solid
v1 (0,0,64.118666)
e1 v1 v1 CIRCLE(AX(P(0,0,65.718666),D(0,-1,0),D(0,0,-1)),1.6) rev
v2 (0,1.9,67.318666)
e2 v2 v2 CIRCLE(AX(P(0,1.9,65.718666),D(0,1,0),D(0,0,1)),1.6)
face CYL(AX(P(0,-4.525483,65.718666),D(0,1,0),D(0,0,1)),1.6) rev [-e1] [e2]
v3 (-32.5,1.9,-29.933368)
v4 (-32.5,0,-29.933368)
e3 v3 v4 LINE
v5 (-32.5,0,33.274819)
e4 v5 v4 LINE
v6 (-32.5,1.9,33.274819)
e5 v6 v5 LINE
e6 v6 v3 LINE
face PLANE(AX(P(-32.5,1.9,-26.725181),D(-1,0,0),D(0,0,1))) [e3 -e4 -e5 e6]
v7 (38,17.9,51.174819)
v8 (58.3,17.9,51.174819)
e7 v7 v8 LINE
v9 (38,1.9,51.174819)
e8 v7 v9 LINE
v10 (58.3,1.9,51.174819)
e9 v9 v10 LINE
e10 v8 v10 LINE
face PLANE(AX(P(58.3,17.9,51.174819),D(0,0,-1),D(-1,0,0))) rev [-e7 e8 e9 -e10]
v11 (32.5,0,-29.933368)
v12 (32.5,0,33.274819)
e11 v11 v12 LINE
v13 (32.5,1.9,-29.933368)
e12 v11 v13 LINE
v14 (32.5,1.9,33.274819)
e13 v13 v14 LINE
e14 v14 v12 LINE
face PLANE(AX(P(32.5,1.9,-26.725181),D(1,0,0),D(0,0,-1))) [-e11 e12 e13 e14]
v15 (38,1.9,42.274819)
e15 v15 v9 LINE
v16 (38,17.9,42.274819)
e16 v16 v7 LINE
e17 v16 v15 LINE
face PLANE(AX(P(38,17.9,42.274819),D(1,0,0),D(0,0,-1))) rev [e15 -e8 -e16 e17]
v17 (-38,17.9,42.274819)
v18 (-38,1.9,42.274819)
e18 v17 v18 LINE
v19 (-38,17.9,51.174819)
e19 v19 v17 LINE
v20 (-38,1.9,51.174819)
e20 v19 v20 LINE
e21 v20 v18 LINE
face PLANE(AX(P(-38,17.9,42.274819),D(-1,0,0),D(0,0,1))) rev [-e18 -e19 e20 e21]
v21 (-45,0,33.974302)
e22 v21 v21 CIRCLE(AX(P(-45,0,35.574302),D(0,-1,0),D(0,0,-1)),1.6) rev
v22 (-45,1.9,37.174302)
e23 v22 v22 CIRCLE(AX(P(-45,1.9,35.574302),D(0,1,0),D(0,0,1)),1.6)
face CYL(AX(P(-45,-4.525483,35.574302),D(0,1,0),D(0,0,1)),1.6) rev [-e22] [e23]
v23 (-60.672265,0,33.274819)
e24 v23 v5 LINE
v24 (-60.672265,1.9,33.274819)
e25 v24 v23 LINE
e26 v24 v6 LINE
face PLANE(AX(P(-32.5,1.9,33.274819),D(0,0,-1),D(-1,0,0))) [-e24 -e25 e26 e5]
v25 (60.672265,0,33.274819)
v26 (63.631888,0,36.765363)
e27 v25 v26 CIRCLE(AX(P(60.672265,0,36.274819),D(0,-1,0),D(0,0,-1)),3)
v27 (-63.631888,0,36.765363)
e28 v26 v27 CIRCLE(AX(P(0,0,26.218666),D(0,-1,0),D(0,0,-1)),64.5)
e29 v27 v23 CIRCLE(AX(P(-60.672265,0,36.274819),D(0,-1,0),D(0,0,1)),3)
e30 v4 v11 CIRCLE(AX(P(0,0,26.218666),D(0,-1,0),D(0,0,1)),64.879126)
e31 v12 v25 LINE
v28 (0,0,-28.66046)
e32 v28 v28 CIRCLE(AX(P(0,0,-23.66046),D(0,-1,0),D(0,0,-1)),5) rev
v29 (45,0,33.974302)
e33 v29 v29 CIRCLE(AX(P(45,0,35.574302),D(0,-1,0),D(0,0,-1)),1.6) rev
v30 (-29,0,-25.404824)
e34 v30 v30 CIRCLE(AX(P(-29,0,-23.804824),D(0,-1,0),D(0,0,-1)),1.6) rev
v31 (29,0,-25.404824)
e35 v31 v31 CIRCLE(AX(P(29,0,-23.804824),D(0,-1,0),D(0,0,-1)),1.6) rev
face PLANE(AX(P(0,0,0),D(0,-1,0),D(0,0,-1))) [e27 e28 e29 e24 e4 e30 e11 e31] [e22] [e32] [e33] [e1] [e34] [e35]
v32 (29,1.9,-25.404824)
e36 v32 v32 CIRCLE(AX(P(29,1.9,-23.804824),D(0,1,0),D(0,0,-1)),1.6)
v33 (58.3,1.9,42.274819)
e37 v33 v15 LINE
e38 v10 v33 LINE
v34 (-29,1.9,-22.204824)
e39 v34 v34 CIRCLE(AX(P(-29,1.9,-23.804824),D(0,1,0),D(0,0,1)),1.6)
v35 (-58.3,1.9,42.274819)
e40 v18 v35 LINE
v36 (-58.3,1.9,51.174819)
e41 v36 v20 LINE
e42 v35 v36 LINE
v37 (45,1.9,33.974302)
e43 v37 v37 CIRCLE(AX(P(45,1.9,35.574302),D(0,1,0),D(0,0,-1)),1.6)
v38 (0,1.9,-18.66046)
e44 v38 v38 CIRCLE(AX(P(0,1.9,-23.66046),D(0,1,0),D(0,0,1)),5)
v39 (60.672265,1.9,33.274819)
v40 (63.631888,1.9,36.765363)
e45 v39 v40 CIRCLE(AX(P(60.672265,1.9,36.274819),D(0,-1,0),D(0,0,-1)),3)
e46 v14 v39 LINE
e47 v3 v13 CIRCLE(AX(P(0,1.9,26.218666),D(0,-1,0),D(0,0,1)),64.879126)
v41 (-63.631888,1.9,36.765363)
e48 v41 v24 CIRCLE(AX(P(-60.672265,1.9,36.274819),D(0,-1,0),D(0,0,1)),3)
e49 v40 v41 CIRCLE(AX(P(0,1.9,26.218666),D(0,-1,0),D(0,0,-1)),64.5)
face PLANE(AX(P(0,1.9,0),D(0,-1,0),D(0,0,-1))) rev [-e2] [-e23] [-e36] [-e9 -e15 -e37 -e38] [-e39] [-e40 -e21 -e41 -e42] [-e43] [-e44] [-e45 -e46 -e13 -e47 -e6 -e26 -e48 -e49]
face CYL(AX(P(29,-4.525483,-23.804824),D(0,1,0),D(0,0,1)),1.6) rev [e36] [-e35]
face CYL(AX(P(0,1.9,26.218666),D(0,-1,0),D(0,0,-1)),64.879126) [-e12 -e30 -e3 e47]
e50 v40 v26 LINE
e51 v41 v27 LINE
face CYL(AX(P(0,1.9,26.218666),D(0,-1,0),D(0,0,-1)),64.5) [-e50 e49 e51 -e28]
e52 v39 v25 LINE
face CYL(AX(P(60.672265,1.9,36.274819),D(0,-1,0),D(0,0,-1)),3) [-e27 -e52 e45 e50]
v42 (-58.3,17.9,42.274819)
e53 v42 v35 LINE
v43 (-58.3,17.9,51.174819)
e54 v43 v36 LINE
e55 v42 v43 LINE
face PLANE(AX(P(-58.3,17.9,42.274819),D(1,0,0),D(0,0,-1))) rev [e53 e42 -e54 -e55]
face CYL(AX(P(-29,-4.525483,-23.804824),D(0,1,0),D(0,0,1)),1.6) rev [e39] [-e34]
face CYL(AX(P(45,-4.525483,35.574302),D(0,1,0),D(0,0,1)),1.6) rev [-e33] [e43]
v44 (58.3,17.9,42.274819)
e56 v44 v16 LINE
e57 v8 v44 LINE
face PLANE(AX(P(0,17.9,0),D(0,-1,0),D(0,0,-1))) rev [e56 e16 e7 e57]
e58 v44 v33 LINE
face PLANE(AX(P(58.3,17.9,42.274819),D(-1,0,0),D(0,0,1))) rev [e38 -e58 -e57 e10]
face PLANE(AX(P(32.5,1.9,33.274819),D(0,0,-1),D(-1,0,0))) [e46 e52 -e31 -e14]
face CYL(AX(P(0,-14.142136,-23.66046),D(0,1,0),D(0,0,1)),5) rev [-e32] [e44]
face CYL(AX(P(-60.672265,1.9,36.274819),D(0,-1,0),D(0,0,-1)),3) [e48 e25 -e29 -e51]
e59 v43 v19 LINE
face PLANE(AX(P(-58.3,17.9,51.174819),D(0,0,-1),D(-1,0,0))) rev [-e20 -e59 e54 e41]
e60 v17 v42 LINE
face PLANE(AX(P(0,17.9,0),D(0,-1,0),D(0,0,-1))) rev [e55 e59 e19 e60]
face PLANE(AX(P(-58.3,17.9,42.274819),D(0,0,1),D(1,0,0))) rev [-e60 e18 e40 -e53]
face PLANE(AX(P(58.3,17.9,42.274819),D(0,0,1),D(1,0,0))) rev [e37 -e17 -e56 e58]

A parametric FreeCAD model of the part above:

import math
import FreeCAD as App
import Part
import Sketcher

doc = App.newDocument("Part")
body = doc.addObject("PartDesign::Body", "Body")

# Sketch on XZ plane
sketch1 = body.newObject("Sketcher::SketchObject", "Sketch")
sketch1.AttachmentSupport = (doc.getObject("XZ_Plane"), [""])
sketch1.MapMode = "FlatFace"
sketch1.addGeometry([
    Part.LineSegment(App.Vector(-18, -10, 0), App.Vector(-18, 10, 0)),
    Part.LineSegment(App.Vector(-18, 10, 0), App.Vector(18, 10, 0)),
    Part.LineSegment(App.Vector(18, 10, 0), App.Vector(18, -10, 0)),
    Part.LineSegment(App.Vector(18, -10, 0), App.Vector(-18, -10, 0)),
], False)
sketch1.addConstraint([
    Sketcher.Constraint("Coincident", 0, 2, 1, 1),
    Sketcher.Constraint("Coincident", 1, 2, 2, 1),
    Sketcher.Constraint("Coincident", 2, 2, 3, 1),
    Sketcher.Constraint("Coincident", 3, 2, 0, 1),
    Sketcher.Constraint("Vertical", 0),
    Sketcher.Constraint("Horizontal", 1),
    Sketcher.Constraint("Vertical", 2),
    Sketcher.Constraint("Horizontal", 3),
    Sketcher.Constraint("Symmetric", 0, 2, 2, 2, -1, 1),
    Sketcher.Constraint("DistanceX", 1, 1, 1, 2, 36.0),
    Sketcher.Constraint("DistanceY", 0, 1, 0, 2, 20.0),
])
pad1 = body.newObject("PartDesign::Pad", "Pad")
pad1.Profile = sketch1
pad1.Length = 1.9
pad1.Reversed = True

# Sketch on XZ plane
sketch2 = body.newObject("Sketcher::SketchObject", "Sketch001")
sketch2.AttachmentSupport = (doc.getObject("XZ_Plane"), [""])
sketch2.MapMode = "FlatFace"
sketch2.addGeometry([
    Part.LineSegment(App.Vector(37.5, -26.725181, 0), App.Vector(32.5, -26.725181, 0)),  # 0
    Part.LineSegment(App.Vector(32.5, -26.725181, 0), App.Vector(32.5, 33.274819, 0)),  # 1
    Part.LineSegment(App.Vector(32.5, 33.274819, 0), App.Vector(60.672265, 33.274819, 0)),  # 2
    Part.ArcOfCircle(Part.Circle(App.Vector(60.672265, 36.274819, 0), App.Vector(0, 0, 1), 3), math.radians(-90), math.radians(9.41096)),  # 3
    Part.ArcOfCircle(Part.Circle(App.Vector(0, 26.218666, 0), App.Vector(0, 0, 1), 64.5), math.radians(9.41096), math.radians(170.58904)),  # 4
    Part.ArcOfCircle(Part.Circle(App.Vector(-60.672265, 36.274819, 0), App.Vector(0, 0, 1), 3), math.radians(170.58904), math.radians(270)),  # 5
    Part.LineSegment(App.Vector(-60.672265, 33.274819, 0), App.Vector(-32.5, 33.274819, 0)),  # 6
    Part.LineSegment(App.Vector(-32.5, 33.274819, 0), App.Vector(-32.5, -26.725181, 0)),  # 7
    Part.LineSegment(App.Vector(-32.5, -26.725181, 0), App.Vector(-37.5, -26.725181, 0)),  # 8
    Part.ArcOfCircle(Part.Circle(App.Vector(0, 26.218666, 0), App.Vector(0, 0, 1), 64.879126), math.radians(-125.30985), math.radians(-54.69015)),  # 9
], False)
sketch2.addConstraint([
    Sketcher.Constraint("Coincident", 0, 2, 1, 1),
    Sketcher.Constraint("Coincident", 1, 2, 2, 1),
    Sketcher.Constraint("Tangent", 2, 2, 3, 1),
    Sketcher.Constraint("Tangent", 3, 2, 4, 1),
    Sketcher.Constraint("Tangent", 4, 2, 5, 1),
    Sketcher.Constraint("Tangent", 5, 2, 6, 1),
    Sketcher.Constraint("Coincident", 6, 2, 7, 1),
    Sketcher.Constraint("Coincident", 7, 2, 8, 1),
    Sketcher.Constraint("Coincident", 8, 2, 9, 1),
    Sketcher.Constraint("Coincident", 9, 2, 0, 1),
    Sketcher.Constraint("Horizontal", 0),
    Sketcher.Constraint("Vertical", 1),
    Sketcher.Constraint("Horizontal", 2),
    Sketcher.Constraint("Horizontal", 6),
    Sketcher.Constraint("Vertical", 7),
    Sketcher.Constraint("Horizontal", 8),
    Sketcher.Constraint("Coincident", 9, 3, 4, 3),
    Sketcher.Constraint("Equal", 3, 5),
    Sketcher.Constraint("Symmetric", 3, 3, 5, 3, -2),
    Sketcher.Constraint("Symmetric", 0, 2, 7, 2, -2),
    Sketcher.Constraint("Radius", 3, 3.0),
    Sketcher.Constraint("Radius", 4, 64.5),
    Sketcher.Constraint("DistanceX", 0, 2, 0, 1, 5.0),
    Sketcher.Constraint("DistanceY", 1, 1, 1, 2, 60.0),
    Sketcher.Constraint("DistanceX", 7, 2, 0, 2, 65.0),
    Sketcher.Constraint("Radius", 9, 64.879126),
    Sketcher.Constraint("DistanceY", -1, 1, 3, 3, 36.274819),
])
pad2 = body.newObject("PartDesign::Pad", "Pad001")
pad2.Profile = sketch2
pad2.Length = 1.9
pad2.Reversed = True

# Sketch on XZ plane
sketch3 = body.newObject("Sketcher::SketchObject", "Sketch002")
sketch3.AttachmentSupport = (doc.getObject("XZ_Plane"), [""])
sketch3.MapMode = "FlatFace"
sketch3.AttachmentOffset = App.Placement(App.Vector(0, 0, -1.9), App.Rotation())
sketch3.addGeometry([
    Part.LineSegment(App.Vector(-32.5, -26.725181, 0), App.Vector(-32.5, -34.194749, 0)),  # 0
    Part.LineSegment(App.Vector(-32.5, -34.194749, 0), App.Vector(-40.442086, -34.194749, 0)),  # 1
    Part.LineSegment(App.Vector(-40.442086, -34.194749, 0), App.Vector(-37.5, -26.725181, 0)),  # 2
    Part.LineSegment(App.Vector(-37.5, -26.725181, 0), App.Vector(-32.5, -26.725181, 0)),  # 3
    Part.LineSegment(App.Vector(32.5, -26.725181, 0), App.Vector(37.5, -26.725181, 0)),  # 4
    Part.LineSegment(App.Vector(37.5, -26.725181, 0), App.Vector(40.442086, -34.194749, 0)),  # 5
    Part.LineSegment(App.Vector(40.442086, -34.194749, 0), App.Vector(32.5, -34.194749, 0)),  # 6
    Part.LineSegment(App.Vector(32.5, -34.194749, 0), App.Vector(32.5, -26.725181, 0)),  # 7
], False)
sketch3.addConstraint([
    Sketcher.Constraint("Coincident", 0, 2, 1, 1),
    Sketcher.Constraint("Coincident", 1, 2, 2, 1),
    Sketcher.Constraint("Coincident", 2, 2, 3, 1),
    Sketcher.Constraint("Coincident", 3, 2, 0, 1),
    Sketcher.Constraint("Coincident", 4, 2, 5, 1),
    Sketcher.Constraint("Coincident", 5, 2, 6, 1),
    Sketcher.Constraint("Coincident", 6, 2, 7, 1),
    Sketcher.Constraint("Coincident", 7, 2, 4, 1),
    Sketcher.Constraint("Vertical", 0),
    Sketcher.Constraint("Horizontal", 1),
    Sketcher.Constraint("Horizontal", 3),
    Sketcher.Constraint("Horizontal", 4),
    Sketcher.Constraint("Horizontal", 6),
    Sketcher.Constraint("Vertical", 7),
    Sketcher.Constraint("Symmetric", 2, 2, 4, 2, -2),
    Sketcher.Constraint("Symmetric", 1, 2, 5, 2, -2),
    Sketcher.Constraint("Equal", 3, 4),
    Sketcher.Constraint("DistanceX", 3, 1, 3, 2, 5.0),
    Sketcher.Constraint("DistanceX", 3, 2, 4, 2, 70.0),
    Sketcher.Constraint("DistanceX", 1, 2, 1, 1, 7.942086),
    Sketcher.Constraint("DistanceY", 0, 2, 0, 1, 7.469567),
    Sketcher.Constraint("DistanceY", 0, 2, -1, 1, 34.194749),
])
pocket1 = body.newObject("PartDesign::Pocket", "Pocket")
pocket1.Profile = sketch3
pocket1.Length = 10
pocket1.Reversed = True

# Sketch on XZ plane
sketch4 = body.newObject("Sketcher::SketchObject", "Sketch003")
sketch4.AttachmentSupport = (doc.getObject("XZ_Plane"), [""])
sketch4.MapMode = "FlatFace"
sketch4.AttachmentOffset = App.Placement(App.Vector(0, 0, -1.9), App.Rotation())
sketch4.addGeometry(Part.Circle(App.Vector(0, -23.66046, 0), App.Vector(0, 0, 1), 5), False)
sketch4.addConstraint([
    Sketcher.Constraint("PointOnObject", 0, 3, -2),
    Sketcher.Constraint("Diameter", 0, 10.0),
    Sketcher.Constraint("DistanceY", 0, 3, -1, 1, 23.66046),
])
pocket2 = body.newObject("PartDesign::Pocket", "Pocket001")
pocket2.Profile = sketch4
pocket2.Length = 1.9
pocket2.Reversed = True

# Sketch on XZ plane
sketch5 = body.newObject("Sketcher::SketchObject", "Sketch004")
sketch5.AttachmentSupport = (doc.getObject("XZ_Plane"), [""])
sketch5.MapMode = "FlatFace"
sketch5.AttachmentOffset = App.Placement(App.Vector(0, 0, -1.9), App.Rotation())
sketch5.addGeometry([
    Part.Circle(App.Vector(0, 65.718666, 0), App.Vector(0, 0, 1), 1.6),  # 0
    Part.Circle(App.Vector(-45, 35.574302, 0), App.Vector(0, 0, 1), 1.6),  # 1
    Part.Circle(App.Vector(45, 35.574302, 0), App.Vector(0, 0, 1), 1.6),  # 2
    Part.Circle(App.Vector(-29, -23.804824, 0), App.Vector(0, 0, 1), 1.6),  # 3
    Part.Circle(App.Vector(29, -23.804824, 0), App.Vector(0, 0, 1), 1.6),  # 4
], False)
sketch5.addConstraint([
    Sketcher.Constraint("Equal", 0, 1),
    Sketcher.Constraint("Equal", 1, 2),
    Sketcher.Constraint("Equal", 2, 3),
    Sketcher.Constraint("Equal", 3, 4),
    Sketcher.Constraint("Symmetric", 1, 3, 2, 3, -2),
    Sketcher.Constraint("Symmetric", 3, 3, 4, 3, -2),
    Sketcher.Constraint("PointOnObject", 0, 3, -2),
    Sketcher.Constraint("Diameter", 0, 3.2),
    Sketcher.Constraint("DistanceX", 1, 3, -1, 1, 45.0),
    Sketcher.Constraint("DistanceX", 3, 3, -1, 1, 29.0),
    Sketcher.Constraint("DistanceY", 3, 3, 0, 3, 89.52349),
    Sketcher.Constraint("DistanceY", -1, 1, 0, 3, 65.718666),
    Sketcher.Constraint("DistanceY", -1, 1, 1, 3, 35.574302),
])
pocket3 = body.newObject("PartDesign::Pocket", "Pocket002")
pocket3.Profile = sketch5
pocket3.Length = 1.9
pocket3.Reversed = True

# Sketch on XZ plane
sketch6 = body.newObject("Sketcher::SketchObject", "Sketch005")
sketch6.AttachmentSupport = (doc.getObject("XZ_Plane"), [""])
sketch6.MapMode = "FlatFace"
sketch6.AttachmentOffset = App.Placement(App.Vector(0, 0, -1.9), App.Rotation())
sketch6.addGeometry([
    Part.LineSegment(App.Vector(38, 42.274819, 0), App.Vector(38, 51.174819, 0)),  # 0
    Part.LineSegment(App.Vector(38, 51.174819, 0), App.Vector(58.3, 51.174819, 0)),  # 1
    Part.LineSegment(App.Vector(58.3, 51.174819, 0), App.Vector(58.3, 42.274819, 0)),  # 2
    Part.LineSegment(App.Vector(58.3, 42.274819, 0), App.Vector(38, 42.274819, 0)),  # 3
    Part.LineSegment(App.Vector(-58.3, 42.274819, 0), App.Vector(-58.3, 51.174819, 0)),  # 4
    Part.LineSegment(App.Vector(-58.3, 51.174819, 0), App.Vector(-38, 51.174819, 0)),  # 5
    Part.LineSegment(App.Vector(-38, 51.174819, 0), App.Vector(-38, 42.274819, 0)),  # 6
    Part.LineSegment(App.Vector(-38, 42.274819, 0), App.Vector(-58.3, 42.274819, 0)),  # 7
], False)
sketch6.addConstraint([
    Sketcher.Constraint("Coincident", 0, 2, 1, 1),
    Sketcher.Constraint("Coincident", 1, 2, 2, 1),
    Sketcher.Constraint("Coincident", 2, 2, 3, 1),
    Sketcher.Constraint("Coincident", 3, 2, 0, 1),
    Sketcher.Constraint("Coincident", 4, 2, 5, 1),
    Sketcher.Constraint("Coincident", 5, 2, 6, 1),
    Sketcher.Constraint("Coincident", 6, 2, 7, 1),
    Sketcher.Constraint("Coincident", 7, 2, 4, 1),
    Sketcher.Constraint("Vertical", 0),
    Sketcher.Constraint("Horizontal", 1),
    Sketcher.Constraint("Vertical", 2),
    Sketcher.Constraint("Horizontal", 3),
    Sketcher.Constraint("Vertical", 4),
    Sketcher.Constraint("Horizontal", 5),
    Sketcher.Constraint("Vertical", 6),
    Sketcher.Constraint("Horizontal", 7),
    Sketcher.Constraint("Symmetric", 1, 2, 4, 2, -2),
    Sketcher.Constraint("Symmetric", 3, 2, 6, 2, -2),
    Sketcher.Constraint("DistanceX", 1, 1, 1, 2, 20.3),
    Sketcher.Constraint("DistanceY", 0, 1, 0, 2, 8.9),
    Sketcher.Constraint("DistanceX", -1, 1, 0, 2, 38.0),
    Sketcher.Constraint("DistanceY", -1, 1, 0, 2, 51.174819),
])
pad3 = body.newObject("PartDesign::Pad", "Pad002")
pad3.Profile = sketch6
pad3.Length = 16
pad3.Reversed = True

doc.recompute()
